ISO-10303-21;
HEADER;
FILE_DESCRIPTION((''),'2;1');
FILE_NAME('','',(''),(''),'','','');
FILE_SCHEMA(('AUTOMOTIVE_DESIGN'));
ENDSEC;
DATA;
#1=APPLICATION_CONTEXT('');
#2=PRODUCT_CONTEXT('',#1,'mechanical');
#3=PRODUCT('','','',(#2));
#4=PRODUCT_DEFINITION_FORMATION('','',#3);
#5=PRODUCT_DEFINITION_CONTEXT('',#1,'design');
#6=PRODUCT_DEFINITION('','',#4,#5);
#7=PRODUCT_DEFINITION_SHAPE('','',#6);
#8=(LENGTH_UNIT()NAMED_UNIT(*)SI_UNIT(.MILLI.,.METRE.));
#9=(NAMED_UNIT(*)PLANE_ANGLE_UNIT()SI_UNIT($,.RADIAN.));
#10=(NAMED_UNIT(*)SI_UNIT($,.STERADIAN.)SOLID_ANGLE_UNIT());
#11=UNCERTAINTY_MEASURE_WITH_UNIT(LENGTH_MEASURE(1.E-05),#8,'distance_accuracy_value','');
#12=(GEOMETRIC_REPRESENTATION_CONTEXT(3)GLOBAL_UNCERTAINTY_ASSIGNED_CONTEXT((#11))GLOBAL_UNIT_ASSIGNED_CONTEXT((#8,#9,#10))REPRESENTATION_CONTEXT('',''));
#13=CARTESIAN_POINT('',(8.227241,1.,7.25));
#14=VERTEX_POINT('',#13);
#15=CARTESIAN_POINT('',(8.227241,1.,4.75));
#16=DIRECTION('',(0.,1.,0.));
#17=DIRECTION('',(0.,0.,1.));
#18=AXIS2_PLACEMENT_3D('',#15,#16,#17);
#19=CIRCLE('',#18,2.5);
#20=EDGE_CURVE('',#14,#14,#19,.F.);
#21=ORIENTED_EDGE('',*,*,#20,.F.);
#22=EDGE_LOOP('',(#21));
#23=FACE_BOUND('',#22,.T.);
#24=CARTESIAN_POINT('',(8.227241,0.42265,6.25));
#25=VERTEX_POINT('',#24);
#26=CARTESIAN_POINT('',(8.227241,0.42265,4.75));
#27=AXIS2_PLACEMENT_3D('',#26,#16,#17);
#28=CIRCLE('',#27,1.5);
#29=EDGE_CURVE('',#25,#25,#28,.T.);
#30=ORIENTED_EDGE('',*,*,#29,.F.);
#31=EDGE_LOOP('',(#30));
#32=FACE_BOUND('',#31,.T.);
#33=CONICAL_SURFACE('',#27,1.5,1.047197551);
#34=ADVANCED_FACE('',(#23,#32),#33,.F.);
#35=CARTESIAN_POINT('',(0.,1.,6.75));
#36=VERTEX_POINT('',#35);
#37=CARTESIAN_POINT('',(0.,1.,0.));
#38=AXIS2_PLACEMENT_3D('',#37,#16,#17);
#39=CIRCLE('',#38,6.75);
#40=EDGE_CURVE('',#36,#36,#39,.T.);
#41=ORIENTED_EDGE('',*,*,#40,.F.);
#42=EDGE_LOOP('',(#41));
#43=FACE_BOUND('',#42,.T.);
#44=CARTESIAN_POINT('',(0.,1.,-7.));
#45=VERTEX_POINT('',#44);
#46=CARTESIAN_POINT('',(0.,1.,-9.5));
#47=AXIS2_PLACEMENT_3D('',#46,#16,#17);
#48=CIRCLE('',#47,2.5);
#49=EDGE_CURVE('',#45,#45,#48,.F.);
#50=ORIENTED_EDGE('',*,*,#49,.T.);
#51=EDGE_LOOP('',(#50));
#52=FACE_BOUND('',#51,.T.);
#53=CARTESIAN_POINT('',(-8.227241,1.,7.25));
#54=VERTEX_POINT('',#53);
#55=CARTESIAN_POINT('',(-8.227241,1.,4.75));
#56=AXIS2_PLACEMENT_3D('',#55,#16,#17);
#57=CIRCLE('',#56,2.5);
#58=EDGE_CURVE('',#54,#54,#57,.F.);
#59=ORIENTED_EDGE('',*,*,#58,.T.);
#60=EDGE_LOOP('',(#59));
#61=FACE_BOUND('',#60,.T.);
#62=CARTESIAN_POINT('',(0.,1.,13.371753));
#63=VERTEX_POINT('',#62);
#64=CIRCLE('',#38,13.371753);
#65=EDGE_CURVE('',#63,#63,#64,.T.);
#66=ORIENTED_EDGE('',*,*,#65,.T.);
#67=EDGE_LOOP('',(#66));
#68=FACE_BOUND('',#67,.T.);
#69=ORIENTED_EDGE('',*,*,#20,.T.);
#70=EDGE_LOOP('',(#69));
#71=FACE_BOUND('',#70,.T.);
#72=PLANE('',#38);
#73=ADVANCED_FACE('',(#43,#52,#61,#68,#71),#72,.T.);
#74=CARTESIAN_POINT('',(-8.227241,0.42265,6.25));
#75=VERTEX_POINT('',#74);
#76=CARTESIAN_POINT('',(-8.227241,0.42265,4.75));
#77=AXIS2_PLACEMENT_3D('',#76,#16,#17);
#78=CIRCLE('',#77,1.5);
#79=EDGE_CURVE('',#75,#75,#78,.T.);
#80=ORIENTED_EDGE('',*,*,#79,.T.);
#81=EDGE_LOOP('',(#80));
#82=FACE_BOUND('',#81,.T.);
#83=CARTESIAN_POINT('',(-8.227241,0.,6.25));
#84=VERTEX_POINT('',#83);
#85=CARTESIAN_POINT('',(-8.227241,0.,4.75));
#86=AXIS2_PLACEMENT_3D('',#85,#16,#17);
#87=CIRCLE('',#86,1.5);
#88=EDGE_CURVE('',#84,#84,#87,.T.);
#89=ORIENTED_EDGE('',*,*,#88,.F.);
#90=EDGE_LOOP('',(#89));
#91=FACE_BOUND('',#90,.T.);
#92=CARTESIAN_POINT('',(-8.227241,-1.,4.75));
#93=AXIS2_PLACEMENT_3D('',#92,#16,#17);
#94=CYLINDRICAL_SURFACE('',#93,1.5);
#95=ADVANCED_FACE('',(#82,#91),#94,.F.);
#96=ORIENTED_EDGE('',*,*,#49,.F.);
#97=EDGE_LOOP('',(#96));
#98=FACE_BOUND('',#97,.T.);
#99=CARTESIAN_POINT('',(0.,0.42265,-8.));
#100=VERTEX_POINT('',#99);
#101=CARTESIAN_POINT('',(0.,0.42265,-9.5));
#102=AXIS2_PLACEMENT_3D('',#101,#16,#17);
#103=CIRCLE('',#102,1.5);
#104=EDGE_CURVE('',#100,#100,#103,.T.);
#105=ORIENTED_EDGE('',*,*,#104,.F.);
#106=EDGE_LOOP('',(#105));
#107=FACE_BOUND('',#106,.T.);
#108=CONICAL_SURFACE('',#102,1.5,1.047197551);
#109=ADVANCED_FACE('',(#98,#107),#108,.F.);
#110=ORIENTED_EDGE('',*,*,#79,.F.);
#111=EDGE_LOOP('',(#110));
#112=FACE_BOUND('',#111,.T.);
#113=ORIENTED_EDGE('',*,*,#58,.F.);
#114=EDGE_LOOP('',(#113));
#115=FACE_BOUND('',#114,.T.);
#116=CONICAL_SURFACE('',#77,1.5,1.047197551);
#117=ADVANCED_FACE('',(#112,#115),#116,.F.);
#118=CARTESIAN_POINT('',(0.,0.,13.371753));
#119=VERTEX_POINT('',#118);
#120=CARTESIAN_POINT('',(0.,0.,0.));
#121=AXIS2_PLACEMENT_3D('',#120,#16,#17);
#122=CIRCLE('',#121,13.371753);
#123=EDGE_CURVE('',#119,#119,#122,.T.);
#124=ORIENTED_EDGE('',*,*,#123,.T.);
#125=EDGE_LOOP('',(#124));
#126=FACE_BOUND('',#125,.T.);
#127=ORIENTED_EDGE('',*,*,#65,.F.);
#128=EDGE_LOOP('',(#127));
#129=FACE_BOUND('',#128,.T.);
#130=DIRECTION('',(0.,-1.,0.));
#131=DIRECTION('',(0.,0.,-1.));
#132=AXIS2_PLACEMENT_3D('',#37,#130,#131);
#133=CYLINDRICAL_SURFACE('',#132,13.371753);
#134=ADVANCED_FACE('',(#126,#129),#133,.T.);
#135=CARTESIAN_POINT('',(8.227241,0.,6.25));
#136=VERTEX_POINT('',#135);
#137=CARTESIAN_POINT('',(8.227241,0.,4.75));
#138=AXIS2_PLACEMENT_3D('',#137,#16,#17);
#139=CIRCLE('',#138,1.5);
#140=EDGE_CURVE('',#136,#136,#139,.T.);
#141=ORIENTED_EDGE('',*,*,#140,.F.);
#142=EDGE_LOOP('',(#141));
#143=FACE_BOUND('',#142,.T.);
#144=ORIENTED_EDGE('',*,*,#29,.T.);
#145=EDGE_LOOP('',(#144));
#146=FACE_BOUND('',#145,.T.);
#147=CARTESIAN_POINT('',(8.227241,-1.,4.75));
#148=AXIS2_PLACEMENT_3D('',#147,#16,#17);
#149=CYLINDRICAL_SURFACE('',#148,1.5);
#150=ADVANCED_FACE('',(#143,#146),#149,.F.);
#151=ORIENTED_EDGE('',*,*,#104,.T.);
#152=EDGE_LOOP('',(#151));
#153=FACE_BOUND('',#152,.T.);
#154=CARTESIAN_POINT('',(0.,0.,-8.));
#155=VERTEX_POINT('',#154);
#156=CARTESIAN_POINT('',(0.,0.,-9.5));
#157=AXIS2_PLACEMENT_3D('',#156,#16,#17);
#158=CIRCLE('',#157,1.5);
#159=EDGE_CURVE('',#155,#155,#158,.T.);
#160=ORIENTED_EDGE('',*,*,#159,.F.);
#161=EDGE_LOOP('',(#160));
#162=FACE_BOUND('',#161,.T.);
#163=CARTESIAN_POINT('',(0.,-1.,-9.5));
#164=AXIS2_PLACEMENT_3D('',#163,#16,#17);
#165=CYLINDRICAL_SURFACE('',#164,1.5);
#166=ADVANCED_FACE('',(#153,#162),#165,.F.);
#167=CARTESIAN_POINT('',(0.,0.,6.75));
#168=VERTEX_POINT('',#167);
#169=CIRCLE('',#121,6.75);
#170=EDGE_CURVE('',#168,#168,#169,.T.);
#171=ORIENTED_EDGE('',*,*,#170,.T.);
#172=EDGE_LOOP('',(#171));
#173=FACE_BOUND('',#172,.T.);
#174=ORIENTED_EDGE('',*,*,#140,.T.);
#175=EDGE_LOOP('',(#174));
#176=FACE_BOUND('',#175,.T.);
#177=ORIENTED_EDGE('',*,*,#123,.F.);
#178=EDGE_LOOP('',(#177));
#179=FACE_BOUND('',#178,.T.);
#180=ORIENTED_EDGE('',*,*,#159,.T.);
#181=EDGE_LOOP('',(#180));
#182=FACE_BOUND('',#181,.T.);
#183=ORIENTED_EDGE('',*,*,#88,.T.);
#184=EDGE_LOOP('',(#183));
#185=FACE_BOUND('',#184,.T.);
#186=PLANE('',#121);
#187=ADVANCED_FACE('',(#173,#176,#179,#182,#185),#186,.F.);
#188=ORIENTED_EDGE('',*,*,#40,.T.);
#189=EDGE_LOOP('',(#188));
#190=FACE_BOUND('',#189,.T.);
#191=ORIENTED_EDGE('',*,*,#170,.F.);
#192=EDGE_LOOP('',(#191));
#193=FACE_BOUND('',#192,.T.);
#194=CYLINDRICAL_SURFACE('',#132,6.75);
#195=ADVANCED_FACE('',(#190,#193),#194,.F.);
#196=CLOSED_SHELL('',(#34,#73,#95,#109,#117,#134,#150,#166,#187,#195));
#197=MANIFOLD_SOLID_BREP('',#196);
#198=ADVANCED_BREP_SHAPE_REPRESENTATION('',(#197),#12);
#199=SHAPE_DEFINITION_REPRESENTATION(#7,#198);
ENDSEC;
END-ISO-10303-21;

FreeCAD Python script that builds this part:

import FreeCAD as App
import Part
import Sketcher

V = App.Vector
Q = App.Units.Quantity


def edges_at(feature, points):
    """Names of the edges that pass closest to the given points."""
    edges = feature.Shape.Edges
    near = lambda p: min(range(len(edges)), key=lambda i: edges[i].distToShape(Part.Vertex(*p))[0])
    return sorted({f"Edge{near(p) + 1}" for p in points})

doc = App.newDocument("Part")
body = doc.addObject("PartDesign::Body", "Body")

# Sketch on XZ plane
sketch1 = body.newObject("Sketcher::SketchObject", "Sketch")
sketch1.AttachmentSupport = (doc.getObject("XZ_Plane"), [""])
sketch1.MapMode = "FlatFace"
sketch1.addGeometry([
    Part.Circle(V(0, 0, 0), V(0, 0, 1), 13),
    Part.Circle(V(0, 0, 0), V(0, 0, 1), 7),
], False)
sketch1.addConstraint([
    Sketcher.Constraint("Coincident", 0, 3, -1, 1),
    Sketcher.Constraint("Coincident", 1, 3, -1, 1),
    Sketcher.Constraint("Diameter", 1, Q("13.5 mm")),
    Sketcher.Constraint("Diameter", 0, Q("26.743506 mm")),
])
pad1 = body.newObject("PartDesign::Pad", "Pad")
pad1.Profile = sketch1
pad1.Length = 1
pad1.Reversed = True

# Sketch on XZ plane
sketch2 = body.newObject("Sketcher::SketchObject", "Sketch001")
sketch2.AttachmentSupport = (doc.getObject("XZ_Plane"), [""])
sketch2.MapMode = "FlatFace"
sketch2.AttachmentOffset = App.Placement(V(0, 0, -1), App.Rotation())
sketch2.addGeometry([
    Part.Circle(V(0, -9.5, 0), V(0, 0, 1), 1.5),
    Part.Circle(V(8.2, 4.8, 0), V(0, 0, 1), 1.5),
    Part.Circle(V(-8.2, 4.8, 0), V(0, 0, 1), 1.5),
], False)
sketch2.addConstraint([
    Sketcher.Constraint("Equal", 0, 1),
    Sketcher.Constraint("Equal", 1, 2),
    Sketcher.Constraint("Symmetric", 1, 3, 2, 3, -2),
    Sketcher.Constraint("PointOnObject", 0, 3, -2),
    Sketcher.Constraint("Diameter", 0, Q("3 mm")),
    Sketcher.Constraint("DistanceY", 0, 3, -1, 1, Q("9.5 mm")),
    Sketcher.Constraint("DistanceY", -1, 1, 1, 3, Q("4.75 mm")),
    Sketcher.Constraint("DistanceX", -1, 1, 1, 3, Q("8.227241 mm")),
])
pocket1 = body.newObject("PartDesign::Pocket", "Pocket")
pocket1.Profile = sketch2
pocket1.Length = 2
pocket1.Reversed = True
doc.recompute()

chamfer = body.newObject("PartDesign::Chamfer", "Chamfer")
chamfer.Base = (pocket1, edges_at(pocket1, [(0, 1, -11), (8.227, 1, 3.25), (-8.227, 1, 3.25)]))
chamfer.ChamferType = "Two distances"
chamfer.Size = 1
chamfer.Size2 = 0.57735

doc.recompute()
